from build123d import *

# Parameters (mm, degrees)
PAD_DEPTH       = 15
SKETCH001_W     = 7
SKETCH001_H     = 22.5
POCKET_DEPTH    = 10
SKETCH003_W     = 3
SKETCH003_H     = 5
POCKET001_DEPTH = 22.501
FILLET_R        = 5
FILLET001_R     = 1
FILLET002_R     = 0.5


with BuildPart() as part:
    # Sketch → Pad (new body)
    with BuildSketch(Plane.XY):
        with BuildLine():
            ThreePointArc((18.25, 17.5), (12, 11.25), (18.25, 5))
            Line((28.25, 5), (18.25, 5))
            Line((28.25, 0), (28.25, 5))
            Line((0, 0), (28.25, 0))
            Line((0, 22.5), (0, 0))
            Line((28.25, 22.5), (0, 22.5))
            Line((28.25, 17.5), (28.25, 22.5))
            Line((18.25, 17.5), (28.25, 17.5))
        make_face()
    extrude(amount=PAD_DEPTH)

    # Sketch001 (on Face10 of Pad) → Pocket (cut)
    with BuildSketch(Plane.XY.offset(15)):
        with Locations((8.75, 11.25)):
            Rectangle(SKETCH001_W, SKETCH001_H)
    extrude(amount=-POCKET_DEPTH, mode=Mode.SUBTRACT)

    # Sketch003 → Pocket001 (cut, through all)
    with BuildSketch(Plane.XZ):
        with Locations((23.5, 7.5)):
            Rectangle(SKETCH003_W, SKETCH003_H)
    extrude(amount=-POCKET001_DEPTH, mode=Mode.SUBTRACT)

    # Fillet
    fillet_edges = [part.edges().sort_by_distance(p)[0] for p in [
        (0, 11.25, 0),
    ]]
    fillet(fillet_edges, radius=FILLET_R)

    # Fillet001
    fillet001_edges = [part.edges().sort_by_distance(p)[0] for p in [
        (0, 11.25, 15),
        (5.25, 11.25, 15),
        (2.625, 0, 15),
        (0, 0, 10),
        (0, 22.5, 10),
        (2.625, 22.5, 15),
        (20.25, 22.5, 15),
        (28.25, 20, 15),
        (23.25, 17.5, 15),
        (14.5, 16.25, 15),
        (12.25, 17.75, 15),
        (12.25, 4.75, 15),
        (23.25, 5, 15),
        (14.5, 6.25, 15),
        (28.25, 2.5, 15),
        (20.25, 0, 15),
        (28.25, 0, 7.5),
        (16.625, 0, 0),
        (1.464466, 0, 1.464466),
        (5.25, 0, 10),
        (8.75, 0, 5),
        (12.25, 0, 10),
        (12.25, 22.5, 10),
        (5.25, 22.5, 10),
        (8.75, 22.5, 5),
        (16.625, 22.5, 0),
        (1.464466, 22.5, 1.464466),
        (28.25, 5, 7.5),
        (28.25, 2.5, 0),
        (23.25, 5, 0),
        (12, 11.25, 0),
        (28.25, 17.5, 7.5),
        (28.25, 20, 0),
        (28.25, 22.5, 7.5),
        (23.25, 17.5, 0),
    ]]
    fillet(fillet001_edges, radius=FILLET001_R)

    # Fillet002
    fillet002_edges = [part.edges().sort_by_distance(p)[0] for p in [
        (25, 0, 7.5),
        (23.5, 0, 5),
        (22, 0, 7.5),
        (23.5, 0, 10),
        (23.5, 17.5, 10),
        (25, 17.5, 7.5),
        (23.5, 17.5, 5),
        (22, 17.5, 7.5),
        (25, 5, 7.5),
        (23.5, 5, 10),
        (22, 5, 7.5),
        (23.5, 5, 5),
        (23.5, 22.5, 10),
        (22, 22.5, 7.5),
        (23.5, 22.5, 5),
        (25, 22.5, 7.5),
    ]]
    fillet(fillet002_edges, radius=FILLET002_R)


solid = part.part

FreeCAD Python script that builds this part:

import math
import FreeCAD as App
import Part
import Sketcher
from FreeCAD import Vector


def edges_at(feature, points):
    """Names of the edges that pass closest to the given points."""
    edges = feature.Shape.Edges
    near = lambda p: min(range(len(edges)), key=lambda i: edges[i].distToShape(Part.Vertex(*p))[0])
    return sorted({f"Edge{near(p) + 1}" for p in points})


def add_polygon(sketch, points):
    """Adds a closed chain of lines whose ends are joined by coincident constraints."""
    first, n = sketch.GeometryCount, len(points)
    for a, b in zip(points, points[1:] + points[:1]):
        sketch.addGeometry(Part.LineSegment(App.Vector(*a, 0), App.Vector(*b, 0)), False)
    for i in range(n):
        sketch.addConstraint(Sketcher.Constraint("Coincident", first + i, 2, first + (i + 1) % n, 1))

doc = App.newDocument("Part")
body = doc.addObject("PartDesign::Body", "Body")

# Sketch on XY plane
sketch1 = body.newObject("Sketcher::SketchObject", "Sketch")
sketch1.AttachmentSupport = (doc.getObject("XY_Plane"), [""])
sketch1.MapMode = "FlatFace"
sketch1.addGeometry([
    Part.ArcOfCircle(Part.Circle(Vector(18, 11, 0), Vector(0, 0, 1), 6), math.radians(90), math.radians(270)),  # 0
    Part.LineSegment(Vector(18, 18, 0), Vector(28, 18, 0)),  # 1
    Part.LineSegment(Vector(28, 18, 0), Vector(28, 22, 0)),  # 2
    Part.LineSegment(Vector(28, 22, 0), Vector(0, 22, 0)),  # 3
    Part.LineSegment(Vector(0, 22, 0), Vector(0, 0, 0)),  # 4
    Part.LineSegment(Vector(0, 0, 0), Vector(28, 0, 0)),  # 5
    Part.LineSegment(Vector(28, 0, 0), Vector(28, 5, 0)),  # 6
    Part.LineSegment(Vector(28, 5, 0), Vector(18, 5, 0)),  # 7
], False)
sketch1.addConstraint([
    Sketcher.Constraint("Tangent", 0, 1, 1, 1),
    Sketcher.Constraint("Coincident", 1, 2, 2, 1),
    Sketcher.Constraint("Coincident", 2, 2, 3, 1),
    Sketcher.Constraint("Coincident", 3, 2, 4, 1),
    Sketcher.Constraint("Coincident", 4, 2, 5, 1),
    Sketcher.Constraint("Coincident", 5, 2, 6, 1),
    Sketcher.Constraint("Coincident", 6, 2, 7, 1),
    Sketcher.Constraint("Tangent", 7, 2, 0, 2),
    Sketcher.Constraint("Horizontal", 1),
    Sketcher.Constraint("Vertical", 2),
    Sketcher.Constraint("Horizontal", 3),
    Sketcher.Constraint("Vertical", 4),
    Sketcher.Constraint("Horizontal", 5),
    Sketcher.Constraint("Vertical", 6),
    Sketcher.Constraint("Horizontal", 7),
    Sketcher.Constraint("Coincident", 4, 2, -1, 1),
    Sketcher.Constraint("Vertical", 2, 2, 5, 2),
    Sketcher.Constraint("Equal", 2, 6),
    Sketcher.Constraint("DistanceX", 1, 1, 1, 2, 10.0),
    Sketcher.Constraint("DistanceY", 2, 1, 2, 2, 5.0),
    Sketcher.Constraint("Radius", 0, 6.25),
    Sketcher.Constraint("DistanceX", 3, 2, 3, 1, 28.25),
])
pad1 = body.newObject("PartDesign::Pad", "Pad")
pad1.Profile = sketch1
pad1.Length = 15

# Sketch on XY plane
sketch2 = body.newObject("Sketcher::SketchObject", "Sketch001")
sketch2.AttachmentSupport = (doc.getObject("XY_Plane"), [""])
sketch2.MapMode = "FlatFace"
sketch2.AttachmentOffset = App.Placement(Vector(0, 0, 15), App.Rotation())
add_polygon(sketch2, [(5, 22), (5, 0), (12, 0), (12, 22)])  # lines 0-3
sketch2.addConstraint([
    Sketcher.Constraint("Vertical", 0),
    Sketcher.Constraint("Horizontal", 1),
    Sketcher.Constraint("Vertical", 2),
    Sketcher.Constraint("Horizontal", 3),
    Sketcher.Constraint("PointOnObject", 0, 2, -1),
    Sketcher.Constraint("DistanceX", 1, 1, 1, 2, 7.0),
    Sketcher.Constraint("DistanceY", 0, 2, 0, 1, 22.5),
    Sketcher.Constraint("DistanceX", -1, 1, 0, 2, 5.25),
])
pocket1 = body.newObject("PartDesign::Pocket", "Pocket")
pocket1.Profile = sketch2
pocket1.Length = 10

# Sketch on XZ plane
sketch3 = body.newObject("Sketcher::SketchObject", "Sketch002")
sketch3.AttachmentSupport = (doc.getObject("XZ_Plane"), [""])
sketch3.MapMode = "FlatFace"
add_polygon(sketch3, [(22, 10), (22, 5), (25, 5), (25, 10)])  # lines 0-3
sketch3.addConstraint([
    Sketcher.Constraint("Vertical", 0),
    Sketcher.Constraint("Horizontal", 1),
    Sketcher.Constraint("Vertical", 2),
    Sketcher.Constraint("Horizontal", 3),
    Sketcher.Constraint("DistanceX", 1, 1, 1, 2, 3.0),
    Sketcher.Constraint("DistanceY", 0, 2, 0, 1, 5.0),
    Sketcher.Constraint("DistanceX", -1, 1, 0, 2, 22.0),
    Sketcher.Constraint("DistanceY", -1, 1, 0, 2, 5.0),
])
pocket2 = body.newObject("PartDesign::Pocket", "Pocket001")
pocket2.Profile = sketch3
pocket2.Type = "ThroughAll"
doc.recompute()

fillet = body.newObject("PartDesign::Fillet", "Fillet")
fillet.Base = (pocket2, edges_at(pocket2, [(0, 11.25, 0)]))
fillet.Radius = 5
doc.recompute()

fillet2 = body.newObject("PartDesign::Fillet", "Fillet001")
fillet2.Base = (fillet, edges_at(fillet, [
    (0, 11.25, 15),
    (5.25, 11.25, 15),
    (2.625, 0, 15),
    (0, 0, 10),
    (0, 22.5, 10),
    (2.625, 22.5, 15),
    (20.25, 22.5, 15),
    (28.25, 20, 15),
    (23.25, 17.5, 15),
    (14.5, 16.25, 15),
    (12.25, 17.75, 15),
    (12.25, 4.75, 15),
    (23.25, 5, 15),
    (14.5, 6.25, 15),
    (28.25, 2.5, 15),
    (20.25, 0, 15),
    (28.25, 0, 7.5),
    (16.625, 0, 0),
    (1.464, 0, 1.464),
    (5.25, 0, 10),
    (8.75, 0, 5),
    (12.25, 0, 10),
    (12.25, 22.5, 10),
    (5.25, 22.5, 10),
    (8.75, 22.5, 5),
    (16.625, 22.5, 0),
    (1.464, 22.5, 1.464),
    (28.25, 5, 7.5),
    (28.25, 2.5, 0),
    (23.25, 5, 0),
    (12, 11.25, 0),
    (28.25, 17.5, 7.5),
    (28.25, 20, 0),
    (28.25, 22.5, 7.5),
    (23.25, 17.5, 0),
]))
fillet2.Radius = 1
doc.recompute()

fillet3 = body.newObject("PartDesign::Fillet", "Fillet002")
fillet3.Base = (fillet2, edges_at(fillet2, [
    (25, 0, 7.5),
    (23.5, 0, 5),
    (22, 0, 7.5),
    (23.5, 0, 10),
    (23.5, 17.5, 10),
    (25, 17.5, 7.5),
    (23.5, 17.5, 5),
    (22, 17.5, 7.5),
    (25, 5, 7.5),
    (23.5, 5, 10),
    (22, 5, 7.5),
    (23.5, 5, 5),
    (23.5, 22.5, 10),
    (22, 22.5, 7.5),
    (23.5, 22.5, 5),
    (25, 22.5, 7.5),
]))
fillet3.Radius = 0.5

doc.recompute()
